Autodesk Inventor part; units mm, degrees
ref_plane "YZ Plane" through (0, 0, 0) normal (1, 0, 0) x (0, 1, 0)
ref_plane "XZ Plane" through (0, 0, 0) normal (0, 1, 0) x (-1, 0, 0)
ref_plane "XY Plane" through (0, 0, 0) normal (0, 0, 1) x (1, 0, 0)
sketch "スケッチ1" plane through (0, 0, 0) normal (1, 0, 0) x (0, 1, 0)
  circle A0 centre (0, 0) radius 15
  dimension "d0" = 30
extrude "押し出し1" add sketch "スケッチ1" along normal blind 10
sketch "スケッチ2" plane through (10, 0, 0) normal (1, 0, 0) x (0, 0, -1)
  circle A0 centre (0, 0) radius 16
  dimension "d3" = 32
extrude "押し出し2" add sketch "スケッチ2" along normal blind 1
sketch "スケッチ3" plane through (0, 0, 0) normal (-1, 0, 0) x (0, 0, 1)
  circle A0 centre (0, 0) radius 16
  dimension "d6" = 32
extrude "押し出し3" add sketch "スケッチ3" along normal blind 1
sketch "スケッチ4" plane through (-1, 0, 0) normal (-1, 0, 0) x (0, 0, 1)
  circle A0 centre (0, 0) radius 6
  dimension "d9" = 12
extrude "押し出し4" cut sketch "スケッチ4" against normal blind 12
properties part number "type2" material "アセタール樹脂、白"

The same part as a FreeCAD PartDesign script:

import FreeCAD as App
import Part
import Sketcher
from FreeCAD import Vector
Q = App.Units.Quantity

doc = App.newDocument("Part")
params = doc.addObject("Spreadsheet::Sheet", "Params")
for row, (alias, value) in enumerate([
    ("sketch1_diameter", "30 mm"),
    ("pad1_length", "10 mm"),
    ("sketch2_diameter", "32 mm"),
    ("pad2_length", "1 mm"),
    ("sketch3_diameter", "32 mm"),
    ("pad3_length", "1 mm"),
    ("sketch4_diameter", "12 mm"),
    ("pocket1_length", "12 mm"),
], start=1):
    params.set(f"A{row}", alias)
    params.set(f"B{row}", "=" + value)
    params.setAlias(f"B{row}", alias)

body = doc.addObject("PartDesign::Body", "Body")

# Sketch on YZ plane
sketch1 = doc.addObject("Sketcher::SketchObject", "Sketch")
body.addObject(sketch1)
sketch1.AttachmentSupport = (doc.YZ_Plane, [""])
sketch1.MapMode = "FlatFace"
sketch1.addGeometry(Part.Circle(Vector(0, 0, 0), Vector(0, 0, 1), 15), False)
sketch1.addConstraint([
    Sketcher.Constraint("Coincident", 0, 3, -1, 1),
    Sketcher.Constraint("Diameter", 0, Q("30 mm")),
])
sketch1.setExpression("Constraints[1]", "Params.sketch1_diameter")
pad1 = doc.addObject("PartDesign::Pad", "Pad")
body.addObject(pad1)
pad1.Profile = sketch1
pad1.setExpression("Length", "Params.pad1_length")

# Sketch on YZ plane
sketch2 = doc.addObject("Sketcher::SketchObject", "Sketch001")
body.addObject(sketch2)
sketch2.AttachmentSupport = (doc.YZ_Plane, [""])
sketch2.MapMode = "FlatFace"
sketch2.AttachmentOffset = App.Placement(Vector(0, 0, 10), App.Rotation())
sketch2.addGeometry(Part.Circle(Vector(0, 0, 0), Vector(0, 0, 1), 16), False)
sketch2.addConstraint([
    Sketcher.Constraint("Coincident", 0, 3, -1, 1),
    Sketcher.Constraint("Diameter", 0, Q("32 mm")),
])
sketch2.setExpression("Constraints[1]", "Params.sketch2_diameter")
pad2 = doc.addObject("PartDesign::Pad", "Pad001")
body.addObject(pad2)
pad2.Profile = sketch2
pad2.setExpression("Length", "Params.pad2_length")

# Sketch on YZ plane
sketch3 = doc.addObject("Sketcher::SketchObject", "Sketch002")
body.addObject(sketch3)
sketch3.AttachmentSupport = (doc.YZ_Plane, [""])
sketch3.MapMode = "FlatFace"
sketch3.addGeometry(Part.Circle(Vector(0, 0, 0), Vector(0, 0, 1), 16), False)
sketch3.addConstraint([
    Sketcher.Constraint("Coincident", 0, 3, -1, 1),
    Sketcher.Constraint("Diameter", 0, Q("32 mm")),
])
sketch3.setExpression("Constraints[1]", "Params.sketch3_diameter")
pad3 = doc.addObject("PartDesign::Pad", "Pad002")
body.addObject(pad3)
pad3.Profile = sketch3
pad3.setExpression("Length", "Params.pad3_length")
pad3.Reversed = True

# Sketch on YZ plane
sketch4 = doc.addObject("Sketcher::SketchObject", "Sketch003")
body.addObject(sketch4)
sketch4.AttachmentSupport = (doc.YZ_Plane, [""])
sketch4.MapMode = "FlatFace"
sketch4.AttachmentOffset = App.Placement(Vector(0, 0, -1), App.Rotation())
sketch4.addGeometry(Part.Circle(Vector(0, 0, 0), Vector(0, 0, 1), 6), False)
sketch4.addConstraint([
    Sketcher.Constraint("Coincident", 0, 3, -1, 1),
    Sketcher.Constraint("Diameter", 0, Q("12 mm")),
])
sketch4.setExpression("Constraints[1]", "Params.sketch4_diameter")
pocket1 = doc.addObject("PartDesign::Pocket", "Pocket")
body.addObject(pocket1)
pocket1.Profile = sketch4
pocket1.setExpression("Length", "Params.pocket1_length")
pocket1.Reversed = True

doc.recompute()
